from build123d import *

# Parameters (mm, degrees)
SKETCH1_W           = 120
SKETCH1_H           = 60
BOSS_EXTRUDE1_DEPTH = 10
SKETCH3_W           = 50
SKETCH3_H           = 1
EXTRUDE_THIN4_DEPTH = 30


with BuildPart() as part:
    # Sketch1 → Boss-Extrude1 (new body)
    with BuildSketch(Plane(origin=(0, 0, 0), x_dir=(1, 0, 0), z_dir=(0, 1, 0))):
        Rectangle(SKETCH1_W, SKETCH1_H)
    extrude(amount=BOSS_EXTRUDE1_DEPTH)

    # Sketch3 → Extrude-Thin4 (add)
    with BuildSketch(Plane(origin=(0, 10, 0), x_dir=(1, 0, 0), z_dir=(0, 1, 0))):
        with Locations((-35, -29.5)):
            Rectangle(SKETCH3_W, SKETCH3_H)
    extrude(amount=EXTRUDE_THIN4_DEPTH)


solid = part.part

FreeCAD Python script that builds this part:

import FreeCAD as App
import Part
import Sketcher
from FreeCAD import Vector
Q = App.Units.Quantity

doc = App.newDocument("Part")
body = doc.addObject("PartDesign::Body", "Body")

sketch1 = body.newObject("Sketcher::SketchObject", "Sketch")
sketch1.AttachmentSupport = (doc.getObject("XZ_Plane"), [""])
sketch1.MapMode = "FlatFace"
sketch1.addGeometry([
    Part.LineSegment(Vector(-60, -30, 0), Vector(-60, 30, 0)),
    Part.LineSegment(Vector(-60, 30, 0), Vector(60, 30, 0)),
    Part.LineSegment(Vector(60, 30, 0), Vector(60, -30, 0)),
    Part.LineSegment(Vector(60, -30, 0), Vector(-60, -30, 0)),
], False)
sketch1.addConstraint([
    Sketcher.Constraint("Coincident", 0, 2, 1, 1),
    Sketcher.Constraint("Coincident", 1, 2, 2, 1),
    Sketcher.Constraint("Coincident", 2, 2, 3, 1),
    Sketcher.Constraint("Coincident", 3, 2, 0, 1),
    Sketcher.Constraint("Vertical", 0),
    Sketcher.Constraint("Horizontal", 1),
    Sketcher.Constraint("Vertical", 2),
    Sketcher.Constraint("Horizontal", 3),
    Sketcher.Constraint("Symmetric", 0, 2, 2, 2, -1, 1),
    Sketcher.Constraint("DistanceX", 1, 1, 1, 2, Q("120 mm")),
    Sketcher.Constraint("DistanceY", 0, 1, 0, 2, Q("60 mm")),
])
pad1 = body.newObject("PartDesign::Pad", "Pad")
pad1.Profile = sketch1
pad1.Length = 10
pad1.Reversed = True

sketch2 = body.newObject("Sketcher::SketchObject", "Sketch001")
sketch2.AttachmentSupport = (doc.getObject("XZ_Plane"), [""])
sketch2.MapMode = "FlatFace"
sketch2.AttachmentOffset = App.Placement(Vector(0, 0, -10), App.Rotation())
sketch2.addGeometry([
    Part.LineSegment(Vector(-60, 29, 0), Vector(-60, 30, 0)),
    Part.LineSegment(Vector(-60, 30, 0), Vector(-10, 30, 0)),
    Part.LineSegment(Vector(-10, 30, 0), Vector(-10, 29, 0)),
    Part.LineSegment(Vector(-10, 29, 0), Vector(-60, 29, 0)),
], False)
sketch2.addConstraint([
    Sketcher.Constraint("Coincident", 0, 2, 1, 1),
    Sketcher.Constraint("Coincident", 1, 2, 2, 1),
    Sketcher.Constraint("Coincident", 2, 2, 3, 1),
    Sketcher.Constraint("Coincident", 3, 2, 0, 1),
    Sketcher.Constraint("Vertical", 0),
    Sketcher.Constraint("Horizontal", 1),
    Sketcher.Constraint("Vertical", 2),
    Sketcher.Constraint("Horizontal", 3),
    Sketcher.Constraint("DistanceX", 1, 1, 1, 2, Q("50 mm")),
    Sketcher.Constraint("DistanceY", 0, 1, 0, 2, Q("1 mm")),
    Sketcher.Constraint("DistanceX", 0, 2, -1, 1, Q("60 mm")),
    Sketcher.Constraint("DistanceY", -1, 1, 0, 2, Q("30 mm")),
])
pad2 = body.newObject("PartDesign::Pad", "Pad001")
pad2.Profile = sketch2
pad2.Length = 30
pad2.Reversed = True

doc.recompute()
